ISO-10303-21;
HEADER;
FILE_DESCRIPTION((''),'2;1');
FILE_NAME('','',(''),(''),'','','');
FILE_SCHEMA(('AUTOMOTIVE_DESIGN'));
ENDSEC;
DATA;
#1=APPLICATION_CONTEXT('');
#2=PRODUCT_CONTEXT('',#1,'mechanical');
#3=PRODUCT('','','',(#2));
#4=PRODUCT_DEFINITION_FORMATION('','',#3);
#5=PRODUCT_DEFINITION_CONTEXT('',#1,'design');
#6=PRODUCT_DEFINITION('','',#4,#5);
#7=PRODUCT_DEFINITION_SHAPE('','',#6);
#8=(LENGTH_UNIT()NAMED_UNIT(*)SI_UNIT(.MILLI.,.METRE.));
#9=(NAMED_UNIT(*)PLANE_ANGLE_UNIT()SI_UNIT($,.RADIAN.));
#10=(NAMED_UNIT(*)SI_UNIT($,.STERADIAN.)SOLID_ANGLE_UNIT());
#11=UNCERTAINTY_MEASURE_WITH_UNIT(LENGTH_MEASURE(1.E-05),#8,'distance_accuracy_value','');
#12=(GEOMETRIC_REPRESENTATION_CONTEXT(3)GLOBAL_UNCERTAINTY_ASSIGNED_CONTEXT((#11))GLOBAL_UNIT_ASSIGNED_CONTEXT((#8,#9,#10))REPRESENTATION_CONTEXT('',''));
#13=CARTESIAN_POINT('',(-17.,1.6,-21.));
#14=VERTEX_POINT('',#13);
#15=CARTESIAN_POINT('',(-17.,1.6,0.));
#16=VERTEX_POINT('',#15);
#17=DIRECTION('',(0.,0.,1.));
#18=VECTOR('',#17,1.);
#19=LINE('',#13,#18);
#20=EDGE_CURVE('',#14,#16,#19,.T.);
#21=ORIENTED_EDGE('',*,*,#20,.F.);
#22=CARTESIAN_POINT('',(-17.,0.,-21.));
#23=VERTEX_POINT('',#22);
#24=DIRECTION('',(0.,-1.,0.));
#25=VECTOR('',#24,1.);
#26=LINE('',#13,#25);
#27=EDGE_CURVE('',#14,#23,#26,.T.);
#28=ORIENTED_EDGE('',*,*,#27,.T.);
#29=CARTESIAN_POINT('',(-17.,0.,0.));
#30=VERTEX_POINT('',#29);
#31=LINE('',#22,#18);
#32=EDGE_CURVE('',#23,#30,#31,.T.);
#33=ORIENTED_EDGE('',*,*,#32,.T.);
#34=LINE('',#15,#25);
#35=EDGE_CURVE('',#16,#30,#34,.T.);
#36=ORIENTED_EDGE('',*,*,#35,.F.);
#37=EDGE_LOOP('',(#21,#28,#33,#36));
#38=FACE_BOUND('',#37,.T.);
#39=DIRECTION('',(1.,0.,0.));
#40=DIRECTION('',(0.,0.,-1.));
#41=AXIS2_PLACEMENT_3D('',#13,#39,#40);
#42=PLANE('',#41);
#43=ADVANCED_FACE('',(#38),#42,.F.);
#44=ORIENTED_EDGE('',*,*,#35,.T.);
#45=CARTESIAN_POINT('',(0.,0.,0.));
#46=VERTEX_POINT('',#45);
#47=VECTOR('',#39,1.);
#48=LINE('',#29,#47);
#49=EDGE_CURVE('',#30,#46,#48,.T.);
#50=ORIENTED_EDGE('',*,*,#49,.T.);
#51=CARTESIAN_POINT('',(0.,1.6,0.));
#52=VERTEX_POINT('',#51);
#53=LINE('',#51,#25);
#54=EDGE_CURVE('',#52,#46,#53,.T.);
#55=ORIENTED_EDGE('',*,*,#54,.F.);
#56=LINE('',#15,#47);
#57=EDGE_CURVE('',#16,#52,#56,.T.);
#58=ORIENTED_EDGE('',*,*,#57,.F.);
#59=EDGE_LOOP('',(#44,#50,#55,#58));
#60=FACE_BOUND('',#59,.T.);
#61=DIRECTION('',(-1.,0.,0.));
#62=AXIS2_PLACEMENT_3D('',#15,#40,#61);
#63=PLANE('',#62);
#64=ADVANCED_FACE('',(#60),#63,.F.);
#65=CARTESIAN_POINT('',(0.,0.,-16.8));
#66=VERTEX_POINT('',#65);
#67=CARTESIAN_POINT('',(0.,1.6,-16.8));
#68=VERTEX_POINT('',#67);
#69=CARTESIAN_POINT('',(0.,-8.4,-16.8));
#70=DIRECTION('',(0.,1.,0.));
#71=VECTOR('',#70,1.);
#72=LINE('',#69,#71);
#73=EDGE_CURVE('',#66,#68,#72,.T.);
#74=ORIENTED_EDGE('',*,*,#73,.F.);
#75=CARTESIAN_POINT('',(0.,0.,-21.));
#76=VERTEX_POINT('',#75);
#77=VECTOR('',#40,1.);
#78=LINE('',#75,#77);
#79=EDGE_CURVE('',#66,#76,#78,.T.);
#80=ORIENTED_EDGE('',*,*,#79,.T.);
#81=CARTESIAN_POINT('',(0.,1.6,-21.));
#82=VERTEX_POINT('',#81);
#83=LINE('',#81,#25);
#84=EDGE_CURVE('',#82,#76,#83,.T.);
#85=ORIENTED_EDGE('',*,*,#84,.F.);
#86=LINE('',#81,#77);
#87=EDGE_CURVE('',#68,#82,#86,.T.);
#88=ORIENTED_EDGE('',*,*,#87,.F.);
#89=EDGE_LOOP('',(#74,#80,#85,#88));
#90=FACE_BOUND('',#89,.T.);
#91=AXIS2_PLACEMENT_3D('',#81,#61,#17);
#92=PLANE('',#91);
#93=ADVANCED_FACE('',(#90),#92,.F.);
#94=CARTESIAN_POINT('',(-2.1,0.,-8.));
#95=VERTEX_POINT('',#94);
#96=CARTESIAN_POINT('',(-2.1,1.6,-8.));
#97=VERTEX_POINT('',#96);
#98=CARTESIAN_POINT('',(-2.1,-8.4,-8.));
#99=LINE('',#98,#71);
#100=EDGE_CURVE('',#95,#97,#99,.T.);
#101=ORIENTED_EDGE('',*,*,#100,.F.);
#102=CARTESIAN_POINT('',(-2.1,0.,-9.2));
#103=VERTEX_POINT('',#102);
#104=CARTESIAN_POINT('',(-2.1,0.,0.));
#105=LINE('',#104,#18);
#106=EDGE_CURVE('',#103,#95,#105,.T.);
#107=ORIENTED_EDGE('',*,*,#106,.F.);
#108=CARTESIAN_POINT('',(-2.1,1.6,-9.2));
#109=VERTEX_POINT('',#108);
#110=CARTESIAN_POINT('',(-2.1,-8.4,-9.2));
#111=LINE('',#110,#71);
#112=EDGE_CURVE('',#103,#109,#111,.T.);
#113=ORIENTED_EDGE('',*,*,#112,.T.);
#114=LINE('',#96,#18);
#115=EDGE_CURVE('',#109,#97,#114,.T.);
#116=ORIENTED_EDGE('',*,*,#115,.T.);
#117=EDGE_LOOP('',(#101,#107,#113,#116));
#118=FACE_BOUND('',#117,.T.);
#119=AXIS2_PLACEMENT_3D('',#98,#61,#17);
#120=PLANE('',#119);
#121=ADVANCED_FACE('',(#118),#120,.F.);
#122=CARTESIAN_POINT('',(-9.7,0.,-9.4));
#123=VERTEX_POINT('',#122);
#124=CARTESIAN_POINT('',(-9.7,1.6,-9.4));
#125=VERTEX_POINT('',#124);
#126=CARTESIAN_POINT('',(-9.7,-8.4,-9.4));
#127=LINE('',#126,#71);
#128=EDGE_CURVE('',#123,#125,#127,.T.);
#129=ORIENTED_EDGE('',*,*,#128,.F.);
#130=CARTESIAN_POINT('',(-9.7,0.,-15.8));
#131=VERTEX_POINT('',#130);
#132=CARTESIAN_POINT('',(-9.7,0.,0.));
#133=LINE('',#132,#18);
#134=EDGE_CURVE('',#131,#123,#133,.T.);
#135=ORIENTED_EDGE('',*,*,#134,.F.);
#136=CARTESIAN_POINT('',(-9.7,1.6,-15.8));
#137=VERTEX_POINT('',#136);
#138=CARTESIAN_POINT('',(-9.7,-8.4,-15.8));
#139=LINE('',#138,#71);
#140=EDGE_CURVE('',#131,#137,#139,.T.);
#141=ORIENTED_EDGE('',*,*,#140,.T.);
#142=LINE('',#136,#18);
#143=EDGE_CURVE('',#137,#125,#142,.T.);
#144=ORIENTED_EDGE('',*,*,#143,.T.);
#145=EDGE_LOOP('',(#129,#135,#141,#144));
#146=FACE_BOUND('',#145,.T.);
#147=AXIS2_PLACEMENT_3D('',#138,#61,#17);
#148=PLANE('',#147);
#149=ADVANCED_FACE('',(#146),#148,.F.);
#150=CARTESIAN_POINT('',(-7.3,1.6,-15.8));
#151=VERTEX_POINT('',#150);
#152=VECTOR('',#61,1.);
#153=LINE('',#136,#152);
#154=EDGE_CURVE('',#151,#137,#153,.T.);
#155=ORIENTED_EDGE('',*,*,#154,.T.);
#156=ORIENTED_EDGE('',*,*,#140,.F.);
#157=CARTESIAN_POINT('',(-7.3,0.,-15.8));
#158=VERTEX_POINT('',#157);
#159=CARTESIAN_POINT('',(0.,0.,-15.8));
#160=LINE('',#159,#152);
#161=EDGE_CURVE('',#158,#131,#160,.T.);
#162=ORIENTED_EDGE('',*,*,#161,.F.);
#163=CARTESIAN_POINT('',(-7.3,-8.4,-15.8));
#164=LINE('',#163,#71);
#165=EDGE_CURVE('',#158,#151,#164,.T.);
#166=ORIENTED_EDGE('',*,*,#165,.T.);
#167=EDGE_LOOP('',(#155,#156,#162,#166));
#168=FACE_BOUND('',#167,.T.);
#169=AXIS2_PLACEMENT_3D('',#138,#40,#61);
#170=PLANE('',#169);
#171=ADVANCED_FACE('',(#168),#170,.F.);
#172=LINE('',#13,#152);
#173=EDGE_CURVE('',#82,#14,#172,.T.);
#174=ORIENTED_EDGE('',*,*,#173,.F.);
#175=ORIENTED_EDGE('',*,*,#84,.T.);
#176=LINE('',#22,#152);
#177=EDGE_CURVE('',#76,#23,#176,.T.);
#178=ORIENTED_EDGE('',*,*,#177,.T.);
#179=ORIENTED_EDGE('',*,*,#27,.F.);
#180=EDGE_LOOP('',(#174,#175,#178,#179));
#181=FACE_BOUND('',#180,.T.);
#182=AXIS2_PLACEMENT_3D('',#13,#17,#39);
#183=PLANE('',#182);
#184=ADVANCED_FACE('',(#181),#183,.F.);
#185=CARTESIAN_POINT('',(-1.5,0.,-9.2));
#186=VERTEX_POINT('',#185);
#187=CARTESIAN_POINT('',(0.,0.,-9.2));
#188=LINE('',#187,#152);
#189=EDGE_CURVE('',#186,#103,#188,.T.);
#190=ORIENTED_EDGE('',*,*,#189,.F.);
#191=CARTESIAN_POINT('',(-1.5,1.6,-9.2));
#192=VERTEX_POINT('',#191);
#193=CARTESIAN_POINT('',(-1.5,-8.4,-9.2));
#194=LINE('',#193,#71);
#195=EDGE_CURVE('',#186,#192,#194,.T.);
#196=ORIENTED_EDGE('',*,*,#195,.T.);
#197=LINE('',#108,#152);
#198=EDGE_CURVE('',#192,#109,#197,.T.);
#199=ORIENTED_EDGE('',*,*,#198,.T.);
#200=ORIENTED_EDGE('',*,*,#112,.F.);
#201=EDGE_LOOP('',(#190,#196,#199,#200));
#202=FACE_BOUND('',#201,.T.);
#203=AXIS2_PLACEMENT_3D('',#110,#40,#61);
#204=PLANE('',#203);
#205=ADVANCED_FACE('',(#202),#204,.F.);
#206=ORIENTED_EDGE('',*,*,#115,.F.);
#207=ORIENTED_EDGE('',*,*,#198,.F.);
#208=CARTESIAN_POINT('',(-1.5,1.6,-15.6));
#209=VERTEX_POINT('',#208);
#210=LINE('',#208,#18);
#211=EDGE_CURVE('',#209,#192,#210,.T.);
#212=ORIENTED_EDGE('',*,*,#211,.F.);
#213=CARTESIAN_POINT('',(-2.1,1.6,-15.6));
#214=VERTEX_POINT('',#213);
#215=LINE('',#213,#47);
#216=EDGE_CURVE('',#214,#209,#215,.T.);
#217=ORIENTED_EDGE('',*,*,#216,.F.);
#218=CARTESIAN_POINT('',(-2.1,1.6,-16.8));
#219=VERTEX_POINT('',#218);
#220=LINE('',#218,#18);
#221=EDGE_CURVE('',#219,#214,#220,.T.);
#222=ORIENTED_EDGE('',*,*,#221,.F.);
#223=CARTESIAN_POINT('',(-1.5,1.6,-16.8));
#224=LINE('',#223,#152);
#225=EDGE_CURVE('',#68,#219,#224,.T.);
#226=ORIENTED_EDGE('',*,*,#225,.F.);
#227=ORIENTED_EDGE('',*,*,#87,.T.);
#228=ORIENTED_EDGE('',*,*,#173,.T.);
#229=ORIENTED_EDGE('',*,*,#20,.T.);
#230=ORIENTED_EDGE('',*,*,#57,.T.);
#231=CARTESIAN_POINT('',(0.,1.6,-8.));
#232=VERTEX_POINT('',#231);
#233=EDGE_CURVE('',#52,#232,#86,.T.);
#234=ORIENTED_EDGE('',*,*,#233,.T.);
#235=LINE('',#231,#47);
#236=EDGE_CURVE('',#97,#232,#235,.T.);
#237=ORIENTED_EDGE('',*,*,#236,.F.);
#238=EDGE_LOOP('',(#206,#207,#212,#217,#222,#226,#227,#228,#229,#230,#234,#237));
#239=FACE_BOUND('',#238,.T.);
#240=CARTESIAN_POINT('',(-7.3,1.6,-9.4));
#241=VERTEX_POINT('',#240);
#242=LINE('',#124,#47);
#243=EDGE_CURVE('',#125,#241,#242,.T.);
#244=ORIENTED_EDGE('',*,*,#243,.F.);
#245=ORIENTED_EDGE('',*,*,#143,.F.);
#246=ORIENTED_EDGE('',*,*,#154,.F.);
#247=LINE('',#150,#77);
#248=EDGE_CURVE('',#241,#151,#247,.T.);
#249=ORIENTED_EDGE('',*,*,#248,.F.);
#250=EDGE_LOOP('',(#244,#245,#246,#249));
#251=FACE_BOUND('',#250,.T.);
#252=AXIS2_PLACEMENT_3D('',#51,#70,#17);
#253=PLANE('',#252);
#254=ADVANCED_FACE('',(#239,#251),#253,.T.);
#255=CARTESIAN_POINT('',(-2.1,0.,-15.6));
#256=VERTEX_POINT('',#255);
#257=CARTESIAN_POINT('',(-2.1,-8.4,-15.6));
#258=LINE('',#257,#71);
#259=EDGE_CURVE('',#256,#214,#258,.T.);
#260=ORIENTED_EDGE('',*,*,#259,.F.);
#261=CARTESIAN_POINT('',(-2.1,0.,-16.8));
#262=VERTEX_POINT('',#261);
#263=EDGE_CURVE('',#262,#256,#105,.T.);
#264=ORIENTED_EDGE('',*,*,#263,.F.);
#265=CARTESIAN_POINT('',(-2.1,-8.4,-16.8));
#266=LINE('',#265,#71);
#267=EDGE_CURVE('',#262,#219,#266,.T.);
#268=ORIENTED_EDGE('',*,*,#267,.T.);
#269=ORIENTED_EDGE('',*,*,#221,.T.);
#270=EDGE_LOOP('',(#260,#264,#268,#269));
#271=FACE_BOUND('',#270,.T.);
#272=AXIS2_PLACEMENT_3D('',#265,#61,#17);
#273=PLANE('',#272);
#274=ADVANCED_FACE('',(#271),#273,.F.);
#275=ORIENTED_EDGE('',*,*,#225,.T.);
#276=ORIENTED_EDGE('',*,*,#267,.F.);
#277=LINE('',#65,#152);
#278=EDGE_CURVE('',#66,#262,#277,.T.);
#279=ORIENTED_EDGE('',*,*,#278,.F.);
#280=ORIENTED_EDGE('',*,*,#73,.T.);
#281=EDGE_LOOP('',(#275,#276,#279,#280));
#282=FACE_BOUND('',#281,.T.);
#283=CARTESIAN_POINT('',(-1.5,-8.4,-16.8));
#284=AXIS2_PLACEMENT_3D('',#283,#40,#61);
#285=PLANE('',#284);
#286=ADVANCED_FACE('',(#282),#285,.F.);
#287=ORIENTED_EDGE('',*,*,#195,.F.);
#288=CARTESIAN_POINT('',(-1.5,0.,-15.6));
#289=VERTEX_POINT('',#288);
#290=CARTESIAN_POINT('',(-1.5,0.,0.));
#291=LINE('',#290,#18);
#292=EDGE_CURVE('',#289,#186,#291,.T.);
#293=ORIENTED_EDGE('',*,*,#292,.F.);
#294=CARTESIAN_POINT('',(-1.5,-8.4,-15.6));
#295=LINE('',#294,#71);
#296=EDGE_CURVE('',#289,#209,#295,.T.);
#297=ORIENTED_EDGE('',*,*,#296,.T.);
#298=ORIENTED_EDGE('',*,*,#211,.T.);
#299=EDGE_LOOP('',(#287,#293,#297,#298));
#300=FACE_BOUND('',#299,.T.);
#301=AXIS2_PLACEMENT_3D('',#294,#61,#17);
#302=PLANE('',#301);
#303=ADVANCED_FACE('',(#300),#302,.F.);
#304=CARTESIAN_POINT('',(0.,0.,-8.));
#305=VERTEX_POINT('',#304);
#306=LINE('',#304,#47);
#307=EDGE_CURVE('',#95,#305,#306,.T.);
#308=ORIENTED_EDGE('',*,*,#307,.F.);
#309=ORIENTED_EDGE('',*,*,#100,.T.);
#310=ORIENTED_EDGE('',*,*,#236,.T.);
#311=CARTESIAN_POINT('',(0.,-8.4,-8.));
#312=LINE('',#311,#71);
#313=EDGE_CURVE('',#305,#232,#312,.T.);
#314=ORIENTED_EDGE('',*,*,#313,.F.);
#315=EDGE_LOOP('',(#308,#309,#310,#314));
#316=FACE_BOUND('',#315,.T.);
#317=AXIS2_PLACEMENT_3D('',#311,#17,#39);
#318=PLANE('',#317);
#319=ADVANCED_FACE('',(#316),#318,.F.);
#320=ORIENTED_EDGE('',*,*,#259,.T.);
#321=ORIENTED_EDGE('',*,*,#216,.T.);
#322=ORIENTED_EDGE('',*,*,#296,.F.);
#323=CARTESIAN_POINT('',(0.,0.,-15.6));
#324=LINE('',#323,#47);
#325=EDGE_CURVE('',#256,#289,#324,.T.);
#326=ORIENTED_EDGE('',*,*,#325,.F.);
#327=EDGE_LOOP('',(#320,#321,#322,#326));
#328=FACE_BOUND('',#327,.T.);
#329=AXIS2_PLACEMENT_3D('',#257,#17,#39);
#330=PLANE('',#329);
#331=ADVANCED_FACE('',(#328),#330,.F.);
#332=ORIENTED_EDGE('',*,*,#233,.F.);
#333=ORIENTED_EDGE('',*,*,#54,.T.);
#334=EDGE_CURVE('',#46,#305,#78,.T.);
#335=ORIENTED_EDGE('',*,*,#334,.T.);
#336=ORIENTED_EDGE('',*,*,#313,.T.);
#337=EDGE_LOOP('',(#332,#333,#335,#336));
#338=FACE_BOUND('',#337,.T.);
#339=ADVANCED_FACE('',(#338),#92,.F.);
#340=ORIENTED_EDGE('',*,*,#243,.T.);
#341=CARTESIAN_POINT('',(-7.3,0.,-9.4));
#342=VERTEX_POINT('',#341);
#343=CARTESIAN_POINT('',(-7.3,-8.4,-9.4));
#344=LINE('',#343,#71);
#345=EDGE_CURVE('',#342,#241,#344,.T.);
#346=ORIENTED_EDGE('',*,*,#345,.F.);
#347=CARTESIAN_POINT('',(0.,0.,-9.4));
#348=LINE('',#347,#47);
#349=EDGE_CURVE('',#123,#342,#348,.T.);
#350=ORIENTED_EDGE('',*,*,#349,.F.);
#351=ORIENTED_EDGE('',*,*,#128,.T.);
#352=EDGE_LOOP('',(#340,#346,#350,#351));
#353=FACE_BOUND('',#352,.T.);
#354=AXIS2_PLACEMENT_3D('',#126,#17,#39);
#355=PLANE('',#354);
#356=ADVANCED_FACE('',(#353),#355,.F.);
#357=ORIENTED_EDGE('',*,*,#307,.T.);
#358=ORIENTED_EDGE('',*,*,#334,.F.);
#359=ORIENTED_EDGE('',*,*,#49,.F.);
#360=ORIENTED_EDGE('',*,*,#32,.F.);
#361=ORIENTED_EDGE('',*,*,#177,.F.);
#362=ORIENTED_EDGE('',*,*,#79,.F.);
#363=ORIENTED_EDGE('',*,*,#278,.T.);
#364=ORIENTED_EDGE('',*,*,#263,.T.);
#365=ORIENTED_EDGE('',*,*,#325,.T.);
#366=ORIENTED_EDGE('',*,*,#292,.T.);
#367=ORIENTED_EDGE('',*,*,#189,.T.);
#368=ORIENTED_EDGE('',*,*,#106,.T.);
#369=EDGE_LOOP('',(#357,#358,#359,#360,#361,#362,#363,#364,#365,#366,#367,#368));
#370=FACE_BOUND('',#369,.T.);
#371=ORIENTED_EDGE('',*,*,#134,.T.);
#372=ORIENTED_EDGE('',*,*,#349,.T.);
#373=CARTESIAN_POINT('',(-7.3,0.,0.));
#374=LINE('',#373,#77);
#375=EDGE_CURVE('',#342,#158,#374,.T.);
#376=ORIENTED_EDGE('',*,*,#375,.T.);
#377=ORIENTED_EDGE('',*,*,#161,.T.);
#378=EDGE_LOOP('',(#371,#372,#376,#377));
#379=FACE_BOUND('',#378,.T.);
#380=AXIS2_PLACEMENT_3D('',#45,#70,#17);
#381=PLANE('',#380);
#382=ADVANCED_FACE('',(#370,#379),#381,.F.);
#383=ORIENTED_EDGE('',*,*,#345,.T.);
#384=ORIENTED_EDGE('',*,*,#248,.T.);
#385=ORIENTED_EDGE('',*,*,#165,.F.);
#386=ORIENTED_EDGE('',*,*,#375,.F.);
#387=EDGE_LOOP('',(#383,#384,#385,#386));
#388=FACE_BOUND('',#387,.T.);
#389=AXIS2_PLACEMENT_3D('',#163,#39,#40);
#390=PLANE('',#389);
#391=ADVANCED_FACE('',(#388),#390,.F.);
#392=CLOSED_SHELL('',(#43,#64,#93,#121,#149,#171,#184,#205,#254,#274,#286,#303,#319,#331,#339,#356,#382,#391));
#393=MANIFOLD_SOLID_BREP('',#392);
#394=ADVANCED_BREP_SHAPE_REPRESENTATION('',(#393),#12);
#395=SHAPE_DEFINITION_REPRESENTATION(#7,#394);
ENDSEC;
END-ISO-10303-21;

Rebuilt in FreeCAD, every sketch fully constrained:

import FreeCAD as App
import Part
import Sketcher
Q = App.Units.Quantity


def add_polygon(sketch, points):
    """Adds a closed chain of lines whose ends are joined by coincident constraints."""
    first, n = sketch.GeometryCount, len(points)
    for a, b in zip(points, points[1:] + points[:1]):
        sketch.addGeometry(Part.LineSegment(App.Vector(*a, 0), App.Vector(*b, 0)), False)
    for i in range(n):
        sketch.addConstraint(Sketcher.Constraint("Coincident", first + i, 2, first + (i + 1) % n, 1))

doc = App.newDocument("Part")
params = doc.addObject("Spreadsheet::Sheet", "Params")
for row, (alias, value) in enumerate([
    ("sketch1_width", "17 mm"),
    ("sketch1_height", "21 mm"),
    ("pad1_length", "1.6 mm"),
    ("sketch2_width", "2.4 mm"),
    ("sketch2_height", "6.4 mm"),
    ("pocket1_length", "10 mm"),
    ("sketch3_width", "2.1 mm"),
    ("sketch3_width2", "0.6 mm"),
    ("sketch3_height", "1.2 mm"),
    ("sketch3_height2", "6.4 mm"),
    ("pocket2_length", "10 mm"),
], start=1):
    params.set(f"A{row}", alias)
    params.set(f"B{row}", "=" + value)
    params.setAlias(f"B{row}", alias)

body = doc.addObject("PartDesign::Body", "Body")

# Sketch on XZ plane
sketch1 = body.newObject("Sketcher::SketchObject", "Sketch")
sketch1.AttachmentSupport = (doc.getObject("XZ_Plane"), [""])
sketch1.MapMode = "FlatFace"
add_polygon(sketch1, [(-17, -21), (-17, 0), (0, 0), (0, -21)])  # lines 0-3
sketch1.addConstraint([
    Sketcher.Constraint("Vertical", 0),
    Sketcher.Constraint("Horizontal", 1),
    Sketcher.Constraint("Vertical", 2),
    Sketcher.Constraint("Horizontal", 3),
    Sketcher.Constraint("Coincident", 1, 2, -1, 1),
    Sketcher.Constraint("DistanceX", 1, 1, 1, 2, Q("17 mm")),
    Sketcher.Constraint("DistanceY", 0, 1, 0, 2, Q("21 mm")),
])
sketch1.setExpression("Constraints[9]", "Params.sketch1_width")
sketch1.setExpression("Constraints[10]", "Params.sketch1_height")
pad1 = body.newObject("PartDesign::Pad", "Pad")
pad1.Profile = sketch1
pad1.setExpression("Length", "Params.pad1_length")
pad1.Reversed = True

# Sketch on XZ plane
sketch2 = body.newObject("Sketcher::SketchObject", "Sketch001")
sketch2.AttachmentSupport = (doc.getObject("XZ_Plane"), [""])
sketch2.MapMode = "FlatFace"
sketch2.AttachmentOffset = App.Placement(App.Vector(0, 0, -1.6), App.Rotation())
add_polygon(sketch2, [(-9.7, -15.8), (-9.7, -9.4), (-7.3, -9.4), (-7.3, -15.8)])  # lines 0-3
sketch2.addConstraint([
    Sketcher.Constraint("Vertical", 0),
    Sketcher.Constraint("Horizontal", 1),
    Sketcher.Constraint("Vertical", 2),
    Sketcher.Constraint("Horizontal", 3),
    Sketcher.Constraint("DistanceX", 1, 1, 1, 2, Q("2.4 mm")),
    Sketcher.Constraint("DistanceY", 0, 1, 0, 2, Q("6.4 mm")),
    Sketcher.Constraint("DistanceX", 0, 2, -1, 1, Q("9.7 mm")),
    Sketcher.Constraint("DistanceY", 0, 2, -1, 1, Q("9.4 mm")),
])
sketch2.setExpression("Constraints[8]", "Params.sketch2_width")
sketch2.setExpression("Constraints[9]", "Params.sketch2_height")
pocket1 = body.newObject("PartDesign::Pocket", "Pocket")
pocket1.Profile = sketch2
pocket1.setExpression("Length", "Params.pocket1_length")
pocket1.Reversed = True

# Sketch on XZ plane
sketch3 = body.newObject("Sketcher::SketchObject", "Sketch002")
sketch3.AttachmentSupport = (doc.getObject("XZ_Plane"), [""])
sketch3.MapMode = "FlatFace"
sketch3.AttachmentOffset = App.Placement(App.Vector(0, 0, -1.6), App.Rotation())
add_polygon(sketch3, [(0, -16.8), (-2.1, -16.8), (-2.1, -15.6), (-1.5, -15.6), (-1.5, -9.2), (-2.1, -9.2), (-2.1, -8), (0, -8)])  # lines 0-7
sketch3.addConstraint([
    Sketcher.Constraint("Horizontal", 0),
    Sketcher.Constraint("Vertical", 1),
    Sketcher.Constraint("Horizontal", 2),
    Sketcher.Constraint("Vertical", 3),
    Sketcher.Constraint("Horizontal", 4),
    Sketcher.Constraint("Vertical", 5),
    Sketcher.Constraint("Horizontal", 6),
    Sketcher.Constraint("Vertical", 7),
    Sketcher.Constraint("PointOnObject", 6, 2, -2),
    Sketcher.Constraint("Vertical", 1, 2, 4, 2),
    Sketcher.Constraint("Equal", 1, 5),
    Sketcher.Constraint("DistanceX", 0, 2, 0, 1, Q("2.1 mm")),
    Sketcher.Constraint("DistanceX", 2, 1, 2, 2, Q("0.6 mm")),
    Sketcher.Constraint("DistanceY", 1, 1, 1, 2, Q("1.2 mm")),
    Sketcher.Constraint("DistanceY", 3, 1, 3, 2, Q("6.4 mm")),
    Sketcher.Constraint("DistanceY", 5, 2, -1, 1, Q("8 mm")),
])
sketch3.setExpression("Constraints[19]", "Params.sketch3_width")
sketch3.setExpression("Constraints[20]", "Params.sketch3_width2")
sketch3.setExpression("Constraints[21]", "Params.sketch3_height")
sketch3.setExpression("Constraints[22]", "Params.sketch3_height2")
pocket2 = body.newObject("PartDesign::Pocket", "Pocket001")
pocket2.Profile = sketch3
pocket2.setExpression("Length", "Params.pocket2_length")
pocket2.Reversed = True

doc.recompute()
